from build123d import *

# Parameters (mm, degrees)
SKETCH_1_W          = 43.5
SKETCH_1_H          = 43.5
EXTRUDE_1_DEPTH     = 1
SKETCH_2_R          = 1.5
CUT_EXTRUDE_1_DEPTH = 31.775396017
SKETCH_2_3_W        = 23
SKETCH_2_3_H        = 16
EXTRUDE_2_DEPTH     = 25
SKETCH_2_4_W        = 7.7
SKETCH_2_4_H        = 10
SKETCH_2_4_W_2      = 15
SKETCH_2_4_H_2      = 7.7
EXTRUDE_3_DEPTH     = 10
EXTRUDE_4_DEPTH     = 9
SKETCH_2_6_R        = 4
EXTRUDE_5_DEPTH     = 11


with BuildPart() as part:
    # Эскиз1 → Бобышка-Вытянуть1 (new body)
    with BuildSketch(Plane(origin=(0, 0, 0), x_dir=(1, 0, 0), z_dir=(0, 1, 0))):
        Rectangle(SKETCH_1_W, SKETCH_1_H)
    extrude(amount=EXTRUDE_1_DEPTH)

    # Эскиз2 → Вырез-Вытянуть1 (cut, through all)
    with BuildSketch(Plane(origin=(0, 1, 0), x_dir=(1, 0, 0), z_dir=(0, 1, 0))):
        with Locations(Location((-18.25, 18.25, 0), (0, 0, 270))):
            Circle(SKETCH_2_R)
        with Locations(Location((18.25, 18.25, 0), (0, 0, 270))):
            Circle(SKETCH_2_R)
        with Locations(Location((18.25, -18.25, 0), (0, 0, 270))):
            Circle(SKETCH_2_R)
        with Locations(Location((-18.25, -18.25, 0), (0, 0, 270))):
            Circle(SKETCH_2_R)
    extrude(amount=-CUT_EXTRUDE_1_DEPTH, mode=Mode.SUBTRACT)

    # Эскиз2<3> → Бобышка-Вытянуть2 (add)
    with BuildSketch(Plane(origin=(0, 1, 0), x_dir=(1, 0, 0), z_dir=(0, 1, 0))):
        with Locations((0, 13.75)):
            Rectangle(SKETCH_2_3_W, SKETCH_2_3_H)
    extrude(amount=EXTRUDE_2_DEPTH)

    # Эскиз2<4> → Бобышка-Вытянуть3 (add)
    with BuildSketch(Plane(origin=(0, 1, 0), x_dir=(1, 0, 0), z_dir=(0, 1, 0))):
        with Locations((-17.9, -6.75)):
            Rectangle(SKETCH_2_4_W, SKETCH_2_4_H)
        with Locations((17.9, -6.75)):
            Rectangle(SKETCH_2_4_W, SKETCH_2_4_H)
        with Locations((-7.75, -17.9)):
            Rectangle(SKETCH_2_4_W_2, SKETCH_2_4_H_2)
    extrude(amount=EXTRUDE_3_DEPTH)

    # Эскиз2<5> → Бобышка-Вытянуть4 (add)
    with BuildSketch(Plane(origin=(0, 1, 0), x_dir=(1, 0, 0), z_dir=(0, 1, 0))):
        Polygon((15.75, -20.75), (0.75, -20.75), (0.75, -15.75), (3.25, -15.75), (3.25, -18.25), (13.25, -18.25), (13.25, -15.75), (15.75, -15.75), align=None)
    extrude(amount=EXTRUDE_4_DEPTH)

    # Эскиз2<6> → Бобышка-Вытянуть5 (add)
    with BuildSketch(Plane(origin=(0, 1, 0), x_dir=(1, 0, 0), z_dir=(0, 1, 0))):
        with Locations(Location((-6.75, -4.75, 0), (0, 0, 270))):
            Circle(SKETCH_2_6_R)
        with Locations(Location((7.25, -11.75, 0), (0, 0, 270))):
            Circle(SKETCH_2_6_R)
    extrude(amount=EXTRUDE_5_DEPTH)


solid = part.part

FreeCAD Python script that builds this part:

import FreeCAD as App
import Part
import Sketcher

doc = App.newDocument("Part")
params = doc.addObject("Spreadsheet::Sheet", "Params")
for row, (alias, value) in enumerate([
    ("sketch1_width", "43.5 mm"),
    ("pad1_length", "1 mm"),
    ("sketch2_diameter", "3 mm"),
    ("sketch3_width", "23 mm"),
    ("sketch3_height", "16 mm"),
    ("pad2_length", "25 mm"),
    ("sketch4_width", "15 mm"),
    ("sketch4_height", "10 mm"),
    ("sketch4_width2", "7.7 mm"),
    ("pad3_length", "10 mm"),
    ("sketch5_width", "15 mm"),
    ("sketch5_width2", "10 mm"),
    ("sketch5_height", "5 mm"),
    ("pad4_length", "9 mm"),
    ("sketch6_diameter", "8 mm"),
    ("pad5_length", "11 mm"),
], start=1):
    params.set(f"A{row}", alias)
    params.set(f"B{row}", "=" + value)
    params.setAlias(f"B{row}", alias)

body = doc.addObject("PartDesign::Body", "Body")

# Sketch on XZ plane
sketch1 = body.newObject("Sketcher::SketchObject", "Sketch")
sketch1.AttachmentSupport = (doc.getObject("XZ_Plane"), [""])
sketch1.MapMode = "FlatFace"
sketch1.addGeometry(Part.LineSegment(App.Vector(-22, -22, 0), App.Vector(-22, 22, 0)), False)
sketch1.addGeometry(Part.LineSegment(App.Vector(-22, 22, 0), App.Vector(22, 22, 0)), False)
sketch1.addGeometry(Part.LineSegment(App.Vector(22, 22, 0), App.Vector(22, -22, 0)), False)
sketch1.addGeometry(Part.LineSegment(App.Vector(22, -22, 0), App.Vector(-22, -22, 0)), False)
sketch1.addConstraint(Sketcher.Constraint("Coincident", 0, 2, 1, 1))
sketch1.addConstraint(Sketcher.Constraint("Coincident", 1, 2, 2, 1))
sketch1.addConstraint(Sketcher.Constraint("Coincident", 2, 2, 3, 1))
sketch1.addConstraint(Sketcher.Constraint("Coincident", 3, 2, 0, 1))
sketch1.addConstraint(Sketcher.Constraint("Vertical", 0))
sketch1.addConstraint(Sketcher.Constraint("Horizontal", 1))
sketch1.addConstraint(Sketcher.Constraint("Vertical", 2))
sketch1.addConstraint(Sketcher.Constraint("Horizontal", 3))
sketch1.addConstraint(Sketcher.Constraint("Symmetric", 0, 2, 2, 2, -1, 1))
sketch1.addConstraint(Sketcher.Constraint("Equal", 3, 0))
sketch1.addConstraint(Sketcher.Constraint("DistanceX", 1, 1, 1, 2, 43.5))
sketch1.setExpression("Constraints[10]", "Params.sketch1_width")
pad1 = body.newObject("PartDesign::Pad", "Pad")
pad1.Profile = sketch1
pad1.setExpression("Length", "Params.pad1_length")
pad1.Reversed = True

# Sketch on XZ plane
sketch2 = body.newObject("Sketcher::SketchObject", "Sketch001")
sketch2.AttachmentSupport = (doc.getObject("XZ_Plane"), [""])
sketch2.MapMode = "FlatFace"
sketch2.AttachmentOffset = App.Placement(App.Vector(0, 0, -1), App.Rotation())
sketch2.addGeometry(Part.Circle(App.Vector(-18.2, -18.2, 0), App.Vector(0, 0, 1), 1.5), False)
sketch2.addGeometry(Part.Circle(App.Vector(18.2, -18.2, 0), App.Vector(0, 0, 1), 1.5), False)
sketch2.addGeometry(Part.Circle(App.Vector(18.2, 18.2, 0), App.Vector(0, 0, 1), 1.5), False)
sketch2.addGeometry(Part.Circle(App.Vector(-18.2, 18.2, 0), App.Vector(0, 0, 1), 1.5), False)
sketch2.addConstraint(Sketcher.Constraint("Equal", 0, 1))
sketch2.addConstraint(Sketcher.Constraint("Equal", 1, 2))
sketch2.addConstraint(Sketcher.Constraint("Equal", 2, 3))
sketch2.addConstraint(Sketcher.Constraint("Symmetric", 0, 3, 2, 3, -1, 1))
sketch2.addConstraint(Sketcher.Constraint("Symmetric", 1, 3, 3, 3, -1, 1))
sketch2.addConstraint(Sketcher.Constraint("Symmetric", 0, 3, 1, 3, -2))
sketch2.addConstraint(Sketcher.Constraint("Diameter", 0, 3.0))
sketch2.addConstraint(Sketcher.Constraint("DistanceX", 0, 3, 1, 3, 36.5))
sketch2.addConstraint(Sketcher.Constraint("DistanceY", 1, 3, 2, 3, 36.5))
sketch2.setExpression("Constraints[6]", "Params.sketch2_diameter")
pocket1 = body.newObject("PartDesign::Pocket", "Pocket")
pocket1.Profile = sketch2
pocket1.Type = "ThroughAll"
pocket1.Reversed = True

# Sketch on XZ plane
sketch3 = body.newObject("Sketcher::SketchObject", "Sketch002")
sketch3.AttachmentSupport = (doc.getObject("XZ_Plane"), [""])
sketch3.MapMode = "FlatFace"
sketch3.AttachmentOffset = App.Placement(App.Vector(0, 0, -1), App.Rotation())
sketch3.addGeometry(Part.LineSegment(App.Vector(-12, -22, 0), App.Vector(-12, -6, 0)), False)
sketch3.addGeometry(Part.LineSegment(App.Vector(-12, -6, 0), App.Vector(12, -6, 0)), False)
sketch3.addGeometry(Part.LineSegment(App.Vector(12, -6, 0), App.Vector(12, -22, 0)), False)
sketch3.addGeometry(Part.LineSegment(App.Vector(12, -22, 0), App.Vector(-12, -22, 0)), False)
sketch3.addConstraint(Sketcher.Constraint("Coincident", 0, 2, 1, 1))
sketch3.addConstraint(Sketcher.Constraint("Coincident", 1, 2, 2, 1))
sketch3.addConstraint(Sketcher.Constraint("Coincident", 2, 2, 3, 1))
sketch3.addConstraint(Sketcher.Constraint("Coincident", 3, 2, 0, 1))
sketch3.addConstraint(Sketcher.Constraint("Vertical", 0))
sketch3.addConstraint(Sketcher.Constraint("Horizontal", 1))
sketch3.addConstraint(Sketcher.Constraint("Vertical", 2))
sketch3.addConstraint(Sketcher.Constraint("Horizontal", 3))
sketch3.addConstraint(Sketcher.Constraint("DistanceX", 1, 1, 1, 2, 23.0))
sketch3.addConstraint(Sketcher.Constraint("DistanceY", 0, 1, 0, 2, 16.0))
sketch3.addConstraint(Sketcher.Constraint("DistanceX", 0, 2, -1, 1, 11.5))
sketch3.addConstraint(Sketcher.Constraint("DistanceY", 0, 2, -1, 1, 5.75))
sketch3.setExpression("Constraints[8]", "Params.sketch3_width")
sketch3.setExpression("Constraints[9]", "Params.sketch3_height")
pad2 = body.newObject("PartDesign::Pad", "Pad001")
pad2.Profile = sketch3
pad2.setExpression("Length", "Params.pad2_length")
pad2.Reversed = True

# Sketch on XZ plane
sketch4 = body.newObject("Sketcher::SketchObject", "Sketch003")
sketch4.AttachmentSupport = (doc.getObject("XZ_Plane"), [""])
sketch4.MapMode = "FlatFace"
sketch4.AttachmentOffset = App.Placement(App.Vector(0, 0, -1), App.Rotation())
sketch4.addGeometry(Part.LineSegment(App.Vector(-22, 2, 0), App.Vector(-22, 12, 0)), False)
sketch4.addGeometry(Part.LineSegment(App.Vector(-22, 12, 0), App.Vector(-14, 12, 0)), False)
sketch4.addGeometry(Part.LineSegment(App.Vector(-14, 12, 0), App.Vector(-14, 2, 0)), False)
sketch4.addGeometry(Part.LineSegment(App.Vector(-14, 2, 0), App.Vector(-22, 2, 0)), False)
sketch4.addGeometry(Part.LineSegment(App.Vector(14, 2, 0), App.Vector(14, 12, 0)), False)
sketch4.addGeometry(Part.LineSegment(App.Vector(14, 12, 0), App.Vector(22, 12, 0)), False)
sketch4.addGeometry(Part.LineSegment(App.Vector(22, 12, 0), App.Vector(22, 2, 0)), False)
sketch4.addGeometry(Part.LineSegment(App.Vector(22, 2, 0), App.Vector(14, 2, 0)), False)
sketch4.addGeometry(Part.LineSegment(App.Vector(-15, 14, 0), App.Vector(-15, 22, 0)), False)
sketch4.addGeometry(Part.LineSegment(App.Vector(-15, 22, 0), App.Vector(0, 22, 0)), False)
sketch4.addGeometry(Part.LineSegment(App.Vector(0, 22, 0), App.Vector(0, 14, 0)), False)
sketch4.addGeometry(Part.LineSegment(App.Vector(0, 14, 0), App.Vector(-15, 14, 0)), False)
sketch4.addConstraint(Sketcher.Constraint("Coincident", 0, 2, 1, 1))
sketch4.addConstraint(Sketcher.Constraint("Coincident", 1, 2, 2, 1))
sketch4.addConstraint(Sketcher.Constraint("Coincident", 2, 2, 3, 1))
sketch4.addConstraint(Sketcher.Constraint("Coincident", 3, 2, 0, 1))
sketch4.addConstraint(Sketcher.Constraint("Coincident", 4, 2, 5, 1))
sketch4.addConstraint(Sketcher.Constraint("Coincident", 5, 2, 6, 1))
sketch4.addConstraint(Sketcher.Constraint("Coincident", 6, 2, 7, 1))
sketch4.addConstraint(Sketcher.Constraint("Coincident", 7, 2, 4, 1))
sketch4.addConstraint(Sketcher.Constraint("Coincident", 8, 2, 9, 1))
sketch4.addConstraint(Sketcher.Constraint("Coincident", 9, 2, 10, 1))
sketch4.addConstraint(Sketcher.Constraint("Coincident", 10, 2, 11, 1))
sketch4.addConstraint(Sketcher.Constraint("Coincident", 11, 2, 8, 1))
sketch4.addConstraint(Sketcher.Constraint("Vertical", 0))
sketch4.addConstraint(Sketcher.Constraint("Horizontal", 1))
sketch4.addConstraint(Sketcher.Constraint("Vertical", 2))
sketch4.addConstraint(Sketcher.Constraint("Horizontal", 3))
sketch4.addConstraint(Sketcher.Constraint("Vertical", 4))
sketch4.addConstraint(Sketcher.Constraint("Horizontal", 5))
sketch4.addConstraint(Sketcher.Constraint("Vertical", 6))
sketch4.addConstraint(Sketcher.Constraint("Horizontal", 7))
sketch4.addConstraint(Sketcher.Constraint("Vertical", 8))
sketch4.addConstraint(Sketcher.Constraint("Horizontal", 9))
sketch4.addConstraint(Sketcher.Constraint("Vertical", 10))
sketch4.addConstraint(Sketcher.Constraint("Horizontal", 11))
sketch4.addConstraint(Sketcher.Constraint("Symmetric", 1, 2, 4, 2, -2))
sketch4.addConstraint(Sketcher.Constraint("Symmetric", 3, 2, 6, 2, -2))
sketch4.addConstraint(Sketcher.Constraint("Equal", 7, 8))
sketch4.addConstraint(Sketcher.Constraint("DistanceX", 9, 1, 9, 2, 15.0))
sketch4.addConstraint(Sketcher.Constraint("DistanceY", 0, 1, 0, 2, 10.0))
sketch4.addConstraint(Sketcher.Constraint("DistanceX", 1, 1, 1, 2, 7.7))
sketch4.addConstraint(Sketcher.Constraint("DistanceY", 1, 2, 8, 2, 10.0))
sketch4.addConstraint(Sketcher.Constraint("DistanceX", 9, 2, 5, 2, 22.0))
sketch4.addConstraint(Sketcher.Constraint("DistanceX", 1, 2, 4, 2, 28.1))
sketch4.addConstraint(Sketcher.Constraint("DistanceY", -1, 1, 0, 2, 11.75))
sketch4.setExpression("Constraints[27]", "Params.sketch4_width")
sketch4.setExpression("Constraints[28]", "Params.sketch4_height")
sketch4.setExpression("Constraints[29]", "Params.sketch4_width2")
pad3 = body.newObject("PartDesign::Pad", "Pad002")
pad3.Profile = sketch4
pad3.setExpression("Length", "Params.pad3_length")
pad3.Reversed = True

# Sketch on XZ plane
sketch5 = body.newObject("Sketcher::SketchObject", "Sketch004")
sketch5.AttachmentSupport = (doc.getObject("XZ_Plane"), [""])
sketch5.MapMode = "FlatFace"
sketch5.AttachmentOffset = App.Placement(App.Vector(0, 0, -1), App.Rotation())
sketch5.addGeometry(Part.LineSegment(App.Vector(0.8, 20.8, 0), App.Vector(15.8, 20.8, 0)), False)
sketch5.addGeometry(Part.LineSegment(App.Vector(15.8, 20.8, 0), App.Vector(15.8, 15.8, 0)), False)
sketch5.addGeometry(Part.LineSegment(App.Vector(15.8, 15.8, 0), App.Vector(13.2, 15.8, 0)), False)
sketch5.addGeometry(Part.LineSegment(App.Vector(13.2, 15.8, 0), App.Vector(13.2, 18.2, 0)), False)
sketch5.addGeometry(Part.LineSegment(App.Vector(13.2, 18.2, 0), App.Vector(3.2, 18.2, 0)), False)
sketch5.addGeometry(Part.LineSegment(App.Vector(3.2, 18.2, 0), App.Vector(3.2, 15.8, 0)), False)
sketch5.addGeometry(Part.LineSegment(App.Vector(3.2, 15.8, 0), App.Vector(0.8, 15.8, 0)), False)
sketch5.addGeometry(Part.LineSegment(App.Vector(0.8, 15.8, 0), App.Vector(0.8, 20.8, 0)), False)
sketch5.addConstraint(Sketcher.Constraint("Coincident", 0, 2, 1, 1))
sketch5.addConstraint(Sketcher.Constraint("Coincident", 1, 2, 2, 1))
sketch5.addConstraint(Sketcher.Constraint("Coincident", 2, 2, 3, 1))
sketch5.addConstraint(Sketcher.Constraint("Coincident", 3, 2, 4, 1))
sketch5.addConstraint(Sketcher.Constraint("Coincident", 4, 2, 5, 1))
sketch5.addConstraint(Sketcher.Constraint("Coincident", 5, 2, 6, 1))
sketch5.addConstraint(Sketcher.Constraint("Coincident", 6, 2, 7, 1))
sketch5.addConstraint(Sketcher.Constraint("Coincident", 7, 2, 0, 1))
sketch5.addConstraint(Sketcher.Constraint("Horizontal", 0))
sketch5.addConstraint(Sketcher.Constraint("Vertical", 1))
sketch5.addConstraint(Sketcher.Constraint("Horizontal", 2))
sketch5.addConstraint(Sketcher.Constraint("Vertical", 3))
sketch5.addConstraint(Sketcher.Constraint("Horizontal", 4))
sketch5.addConstraint(Sketcher.Constraint("Vertical", 5))
sketch5.addConstraint(Sketcher.Constraint("Horizontal", 6))
sketch5.addConstraint(Sketcher.Constraint("Vertical", 7))
sketch5.addConstraint(Sketcher.Constraint("Horizontal", 2, 2, 5, 2))
sketch5.addConstraint(Sketcher.Constraint("Equal", 2, 6))
sketch5.addConstraint(Sketcher.Constraint("Equal", 6, 3))
sketch5.addConstraint(Sketcher.Constraint("DistanceX", 0, 1, 0, 2, 15.0))
sketch5.addConstraint(Sketcher.Constraint("DistanceX", 4, 2, 4, 1, 10.0))
sketch5.addConstraint(Sketcher.Constraint("DistanceY", 1, 2, 1, 1, 5.0))
sketch5.addConstraint(Sketcher.Constraint("DistanceX", -1, 1, 0, 2, 15.75))
sketch5.addConstraint(Sketcher.Constraint("DistanceY", -1, 1, 0, 2, 20.75))
sketch5.setExpression("Constraints[19]", "Params.sketch5_width")
sketch5.setExpression("Constraints[20]", "Params.sketch5_width2")
sketch5.setExpression("Constraints[21]", "Params.sketch5_height")
pad4 = body.newObject("PartDesign::Pad", "Pad003")
pad4.Profile = sketch5
pad4.setExpression("Length", "Params.pad4_length")
pad4.Reversed = True

# Sketch on XZ plane
sketch6 = body.newObject("Sketcher::SketchObject", "Sketch005")
sketch6.AttachmentSupport = (doc.getObject("XZ_Plane"), [""])
sketch6.MapMode = "FlatFace"
sketch6.AttachmentOffset = App.Placement(App.Vector(0, 0, -1), App.Rotation())
sketch6.addGeometry(Part.Circle(App.Vector(-6.8, 4.8, 0), App.Vector(0, 0, 1), 4), False)
sketch6.addGeometry(Part.Circle(App.Vector(7.2, 11.8, 0), App.Vector(0, 0, 1), 4), False)
sketch6.addConstraint(Sketcher.Constraint("Equal", 0, 1))
sketch6.addConstraint(Sketcher.Constraint("Diameter", 0, 8.0))
sketch6.addConstraint(Sketcher.Constraint("DistanceX", 0, 3, 1, 3, 14.0))
sketch6.addConstraint(Sketcher.Constraint("DistanceY", 0, 3, 1, 3, 7.0))
sketch6.addConstraint(Sketcher.Constraint("DistanceX", 0, 3, -1, 1, 6.75))
sketch6.addConstraint(Sketcher.Constraint("DistanceY", -1, 1, 0, 3, 4.75))
sketch6.setExpression("Constraints[1]", "Params.sketch6_diameter")
pad5 = body.newObject("PartDesign::Pad", "Pad004")
pad5.Profile = sketch6
pad5.setExpression("Length", "Params.pad5_length")
pad5.Reversed = True

doc.recompute()
